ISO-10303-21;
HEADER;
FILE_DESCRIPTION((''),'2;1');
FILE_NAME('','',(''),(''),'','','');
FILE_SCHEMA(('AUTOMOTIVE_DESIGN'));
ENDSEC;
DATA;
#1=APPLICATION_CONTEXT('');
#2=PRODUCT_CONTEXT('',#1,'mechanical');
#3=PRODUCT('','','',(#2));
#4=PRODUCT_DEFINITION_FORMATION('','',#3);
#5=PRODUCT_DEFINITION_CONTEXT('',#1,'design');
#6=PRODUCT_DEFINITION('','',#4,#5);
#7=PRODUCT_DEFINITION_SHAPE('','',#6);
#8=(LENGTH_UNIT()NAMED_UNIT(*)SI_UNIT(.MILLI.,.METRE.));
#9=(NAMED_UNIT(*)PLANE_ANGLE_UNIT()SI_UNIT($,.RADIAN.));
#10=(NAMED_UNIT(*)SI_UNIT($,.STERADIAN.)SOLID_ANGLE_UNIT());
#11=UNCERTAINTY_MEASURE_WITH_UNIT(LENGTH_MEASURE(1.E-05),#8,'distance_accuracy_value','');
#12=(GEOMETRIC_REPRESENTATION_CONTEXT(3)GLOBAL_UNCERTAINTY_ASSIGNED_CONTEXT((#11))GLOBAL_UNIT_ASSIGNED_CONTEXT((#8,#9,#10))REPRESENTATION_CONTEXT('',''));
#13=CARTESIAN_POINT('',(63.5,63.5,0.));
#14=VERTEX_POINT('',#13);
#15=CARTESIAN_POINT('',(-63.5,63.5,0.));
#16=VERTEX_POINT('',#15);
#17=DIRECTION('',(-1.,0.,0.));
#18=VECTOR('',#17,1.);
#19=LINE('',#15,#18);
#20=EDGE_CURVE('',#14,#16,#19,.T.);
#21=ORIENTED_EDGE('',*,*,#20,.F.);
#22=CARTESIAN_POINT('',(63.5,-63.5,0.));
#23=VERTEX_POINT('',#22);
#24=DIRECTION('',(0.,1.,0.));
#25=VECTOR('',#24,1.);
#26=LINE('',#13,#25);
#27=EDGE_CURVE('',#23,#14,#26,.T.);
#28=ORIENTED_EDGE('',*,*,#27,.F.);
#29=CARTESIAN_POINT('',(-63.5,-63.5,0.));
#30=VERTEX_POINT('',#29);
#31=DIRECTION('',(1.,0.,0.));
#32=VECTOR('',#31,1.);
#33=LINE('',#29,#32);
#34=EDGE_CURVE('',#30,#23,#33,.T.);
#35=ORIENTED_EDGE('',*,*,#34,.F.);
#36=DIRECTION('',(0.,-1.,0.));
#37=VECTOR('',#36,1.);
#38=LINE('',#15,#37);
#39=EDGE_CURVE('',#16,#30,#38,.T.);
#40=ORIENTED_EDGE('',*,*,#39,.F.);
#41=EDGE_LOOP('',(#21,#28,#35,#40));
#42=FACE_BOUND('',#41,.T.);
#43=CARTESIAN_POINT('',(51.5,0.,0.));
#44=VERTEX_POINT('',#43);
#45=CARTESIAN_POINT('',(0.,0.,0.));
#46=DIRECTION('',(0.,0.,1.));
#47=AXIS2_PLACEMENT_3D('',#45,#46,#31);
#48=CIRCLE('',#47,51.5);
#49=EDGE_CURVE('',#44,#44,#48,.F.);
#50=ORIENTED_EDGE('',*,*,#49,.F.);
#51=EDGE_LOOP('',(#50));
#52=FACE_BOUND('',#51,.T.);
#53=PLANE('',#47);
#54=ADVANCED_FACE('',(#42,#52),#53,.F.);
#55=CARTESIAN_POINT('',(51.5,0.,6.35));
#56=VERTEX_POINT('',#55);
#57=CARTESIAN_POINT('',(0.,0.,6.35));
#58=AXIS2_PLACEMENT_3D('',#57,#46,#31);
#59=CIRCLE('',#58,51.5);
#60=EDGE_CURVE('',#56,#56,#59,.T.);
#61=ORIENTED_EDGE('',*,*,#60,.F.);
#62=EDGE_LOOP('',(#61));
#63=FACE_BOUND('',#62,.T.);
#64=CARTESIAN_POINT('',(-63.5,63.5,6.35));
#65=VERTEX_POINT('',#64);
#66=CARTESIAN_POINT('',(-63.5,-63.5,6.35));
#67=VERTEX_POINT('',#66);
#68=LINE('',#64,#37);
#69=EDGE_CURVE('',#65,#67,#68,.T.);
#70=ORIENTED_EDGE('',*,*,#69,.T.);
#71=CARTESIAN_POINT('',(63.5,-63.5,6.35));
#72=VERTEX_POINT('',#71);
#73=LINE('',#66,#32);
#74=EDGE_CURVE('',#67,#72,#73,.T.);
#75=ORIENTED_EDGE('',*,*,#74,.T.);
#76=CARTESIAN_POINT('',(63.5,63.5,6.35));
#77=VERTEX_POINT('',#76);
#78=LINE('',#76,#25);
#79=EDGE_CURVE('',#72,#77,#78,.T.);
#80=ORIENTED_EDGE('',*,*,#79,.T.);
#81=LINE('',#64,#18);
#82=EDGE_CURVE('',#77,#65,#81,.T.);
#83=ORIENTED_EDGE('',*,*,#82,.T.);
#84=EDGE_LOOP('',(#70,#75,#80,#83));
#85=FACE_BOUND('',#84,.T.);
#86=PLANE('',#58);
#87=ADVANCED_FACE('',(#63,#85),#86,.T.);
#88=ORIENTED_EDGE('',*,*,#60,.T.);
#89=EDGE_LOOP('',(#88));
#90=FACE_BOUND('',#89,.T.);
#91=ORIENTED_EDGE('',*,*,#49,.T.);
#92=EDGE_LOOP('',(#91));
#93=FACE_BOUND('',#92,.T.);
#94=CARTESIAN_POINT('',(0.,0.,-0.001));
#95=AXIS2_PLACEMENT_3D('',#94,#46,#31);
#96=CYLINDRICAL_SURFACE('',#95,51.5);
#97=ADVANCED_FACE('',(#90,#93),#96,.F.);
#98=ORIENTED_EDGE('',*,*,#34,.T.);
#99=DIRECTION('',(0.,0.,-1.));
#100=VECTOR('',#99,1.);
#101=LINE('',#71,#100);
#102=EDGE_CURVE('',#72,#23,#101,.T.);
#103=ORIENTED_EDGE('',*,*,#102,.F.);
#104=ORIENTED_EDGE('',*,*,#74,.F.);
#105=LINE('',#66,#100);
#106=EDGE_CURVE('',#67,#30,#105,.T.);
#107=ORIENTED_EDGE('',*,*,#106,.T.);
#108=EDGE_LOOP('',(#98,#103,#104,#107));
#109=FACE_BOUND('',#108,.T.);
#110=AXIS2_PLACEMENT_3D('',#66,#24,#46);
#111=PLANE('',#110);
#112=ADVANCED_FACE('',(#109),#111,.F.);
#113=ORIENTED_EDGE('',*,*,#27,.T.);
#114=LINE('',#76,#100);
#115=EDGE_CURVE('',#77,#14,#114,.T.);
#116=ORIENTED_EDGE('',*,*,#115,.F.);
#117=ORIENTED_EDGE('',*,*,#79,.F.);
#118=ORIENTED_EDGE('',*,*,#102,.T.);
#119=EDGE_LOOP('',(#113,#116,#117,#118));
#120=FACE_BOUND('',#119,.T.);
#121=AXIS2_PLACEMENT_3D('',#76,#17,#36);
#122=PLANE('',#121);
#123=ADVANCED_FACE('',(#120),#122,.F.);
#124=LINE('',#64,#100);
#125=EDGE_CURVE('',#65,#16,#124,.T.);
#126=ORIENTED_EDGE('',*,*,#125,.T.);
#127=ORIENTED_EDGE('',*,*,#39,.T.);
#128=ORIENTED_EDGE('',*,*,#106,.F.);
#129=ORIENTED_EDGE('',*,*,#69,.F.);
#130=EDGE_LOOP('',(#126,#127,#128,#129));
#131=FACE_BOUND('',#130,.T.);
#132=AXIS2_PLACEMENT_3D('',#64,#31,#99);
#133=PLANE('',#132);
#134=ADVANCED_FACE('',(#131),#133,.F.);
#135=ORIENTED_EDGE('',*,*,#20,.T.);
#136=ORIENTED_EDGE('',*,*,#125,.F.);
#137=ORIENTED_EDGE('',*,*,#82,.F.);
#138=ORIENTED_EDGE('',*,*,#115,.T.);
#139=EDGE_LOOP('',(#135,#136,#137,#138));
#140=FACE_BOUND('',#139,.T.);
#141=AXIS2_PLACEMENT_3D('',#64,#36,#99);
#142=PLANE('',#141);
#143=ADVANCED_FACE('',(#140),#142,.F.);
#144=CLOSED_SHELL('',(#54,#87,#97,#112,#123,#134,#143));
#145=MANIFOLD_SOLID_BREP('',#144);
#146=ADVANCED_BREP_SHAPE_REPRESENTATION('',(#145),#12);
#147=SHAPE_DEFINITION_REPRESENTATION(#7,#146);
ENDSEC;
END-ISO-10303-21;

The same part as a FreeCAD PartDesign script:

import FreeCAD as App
import Part
import Sketcher

V = App.Vector
Q = App.Units.Quantity

doc = App.newDocument("Part")
body = doc.addObject("PartDesign::Body", "Body")

sketch1 = body.newObject("Sketcher::SketchObject", "Sketch")
sketch1.AttachmentSupport = (doc.getObject("XY_Plane"), [""])
sketch1.MapMode = "FlatFace"
sketch1.addGeometry(Part.LineSegment(V(-64, 64, 0), V(-64, -64, 0)), False)
sketch1.addGeometry(Part.LineSegment(V(-64, -64, 0), V(64, -64, 0)), False)
sketch1.addGeometry(Part.LineSegment(V(64, -64, 0), V(64, 64, 0)), False)
sketch1.addGeometry(Part.LineSegment(V(64, 64, 0), V(-64, 64, 0)), False)
sketch1.addConstraint(Sketcher.Constraint("Coincident", 0, 2, 1, 1))
sketch1.addConstraint(Sketcher.Constraint("Coincident", 1, 2, 2, 1))
sketch1.addConstraint(Sketcher.Constraint("Coincident", 2, 2, 3, 1))
sketch1.addConstraint(Sketcher.Constraint("Coincident", 3, 2, 0, 1))
sketch1.addConstraint(Sketcher.Constraint("Vertical", 0))
sketch1.addConstraint(Sketcher.Constraint("Horizontal", 1))
sketch1.addConstraint(Sketcher.Constraint("Vertical", 2))
sketch1.addConstraint(Sketcher.Constraint("Horizontal", 3))
sketch1.addConstraint(Sketcher.Constraint("Symmetric", 0, 2, 2, 2, -1, 1))
sketch1.addConstraint(Sketcher.Constraint("Equal", 3, 0))
sketch1.addConstraint(Sketcher.Constraint("DistanceX", 1, 1, 1, 2, Q("5 in")))
pad1 = body.newObject("PartDesign::Pad", "Pad")
pad1.Profile = sketch1
pad1.Length = Q("0.25 in")

sketch2 = body.newObject("Sketcher::SketchObject", "Sketch001")
sketch2.AttachmentSupport = (doc.getObject("XY_Plane"), [""])
sketch2.MapMode = "FlatFace"
sketch2.AttachmentOffset = App.Placement(V(0, 0, 0.25 * 25.4), App.Rotation())
sketch2.addGeometry(Part.Circle(V(0, 0, 0), V(0, 0, 1), 52), False)
sketch2.addConstraint(Sketcher.Constraint("Coincident", 0, 3, -1, 1))
sketch2.addConstraint(Sketcher.Constraint("Diameter", 0, Q("103 mm")))
pocket1 = body.newObject("PartDesign::Pocket", "Pocket")
pocket1.Profile = sketch2
pocket1.Type = "UpToFirst"

doc.recompute()
